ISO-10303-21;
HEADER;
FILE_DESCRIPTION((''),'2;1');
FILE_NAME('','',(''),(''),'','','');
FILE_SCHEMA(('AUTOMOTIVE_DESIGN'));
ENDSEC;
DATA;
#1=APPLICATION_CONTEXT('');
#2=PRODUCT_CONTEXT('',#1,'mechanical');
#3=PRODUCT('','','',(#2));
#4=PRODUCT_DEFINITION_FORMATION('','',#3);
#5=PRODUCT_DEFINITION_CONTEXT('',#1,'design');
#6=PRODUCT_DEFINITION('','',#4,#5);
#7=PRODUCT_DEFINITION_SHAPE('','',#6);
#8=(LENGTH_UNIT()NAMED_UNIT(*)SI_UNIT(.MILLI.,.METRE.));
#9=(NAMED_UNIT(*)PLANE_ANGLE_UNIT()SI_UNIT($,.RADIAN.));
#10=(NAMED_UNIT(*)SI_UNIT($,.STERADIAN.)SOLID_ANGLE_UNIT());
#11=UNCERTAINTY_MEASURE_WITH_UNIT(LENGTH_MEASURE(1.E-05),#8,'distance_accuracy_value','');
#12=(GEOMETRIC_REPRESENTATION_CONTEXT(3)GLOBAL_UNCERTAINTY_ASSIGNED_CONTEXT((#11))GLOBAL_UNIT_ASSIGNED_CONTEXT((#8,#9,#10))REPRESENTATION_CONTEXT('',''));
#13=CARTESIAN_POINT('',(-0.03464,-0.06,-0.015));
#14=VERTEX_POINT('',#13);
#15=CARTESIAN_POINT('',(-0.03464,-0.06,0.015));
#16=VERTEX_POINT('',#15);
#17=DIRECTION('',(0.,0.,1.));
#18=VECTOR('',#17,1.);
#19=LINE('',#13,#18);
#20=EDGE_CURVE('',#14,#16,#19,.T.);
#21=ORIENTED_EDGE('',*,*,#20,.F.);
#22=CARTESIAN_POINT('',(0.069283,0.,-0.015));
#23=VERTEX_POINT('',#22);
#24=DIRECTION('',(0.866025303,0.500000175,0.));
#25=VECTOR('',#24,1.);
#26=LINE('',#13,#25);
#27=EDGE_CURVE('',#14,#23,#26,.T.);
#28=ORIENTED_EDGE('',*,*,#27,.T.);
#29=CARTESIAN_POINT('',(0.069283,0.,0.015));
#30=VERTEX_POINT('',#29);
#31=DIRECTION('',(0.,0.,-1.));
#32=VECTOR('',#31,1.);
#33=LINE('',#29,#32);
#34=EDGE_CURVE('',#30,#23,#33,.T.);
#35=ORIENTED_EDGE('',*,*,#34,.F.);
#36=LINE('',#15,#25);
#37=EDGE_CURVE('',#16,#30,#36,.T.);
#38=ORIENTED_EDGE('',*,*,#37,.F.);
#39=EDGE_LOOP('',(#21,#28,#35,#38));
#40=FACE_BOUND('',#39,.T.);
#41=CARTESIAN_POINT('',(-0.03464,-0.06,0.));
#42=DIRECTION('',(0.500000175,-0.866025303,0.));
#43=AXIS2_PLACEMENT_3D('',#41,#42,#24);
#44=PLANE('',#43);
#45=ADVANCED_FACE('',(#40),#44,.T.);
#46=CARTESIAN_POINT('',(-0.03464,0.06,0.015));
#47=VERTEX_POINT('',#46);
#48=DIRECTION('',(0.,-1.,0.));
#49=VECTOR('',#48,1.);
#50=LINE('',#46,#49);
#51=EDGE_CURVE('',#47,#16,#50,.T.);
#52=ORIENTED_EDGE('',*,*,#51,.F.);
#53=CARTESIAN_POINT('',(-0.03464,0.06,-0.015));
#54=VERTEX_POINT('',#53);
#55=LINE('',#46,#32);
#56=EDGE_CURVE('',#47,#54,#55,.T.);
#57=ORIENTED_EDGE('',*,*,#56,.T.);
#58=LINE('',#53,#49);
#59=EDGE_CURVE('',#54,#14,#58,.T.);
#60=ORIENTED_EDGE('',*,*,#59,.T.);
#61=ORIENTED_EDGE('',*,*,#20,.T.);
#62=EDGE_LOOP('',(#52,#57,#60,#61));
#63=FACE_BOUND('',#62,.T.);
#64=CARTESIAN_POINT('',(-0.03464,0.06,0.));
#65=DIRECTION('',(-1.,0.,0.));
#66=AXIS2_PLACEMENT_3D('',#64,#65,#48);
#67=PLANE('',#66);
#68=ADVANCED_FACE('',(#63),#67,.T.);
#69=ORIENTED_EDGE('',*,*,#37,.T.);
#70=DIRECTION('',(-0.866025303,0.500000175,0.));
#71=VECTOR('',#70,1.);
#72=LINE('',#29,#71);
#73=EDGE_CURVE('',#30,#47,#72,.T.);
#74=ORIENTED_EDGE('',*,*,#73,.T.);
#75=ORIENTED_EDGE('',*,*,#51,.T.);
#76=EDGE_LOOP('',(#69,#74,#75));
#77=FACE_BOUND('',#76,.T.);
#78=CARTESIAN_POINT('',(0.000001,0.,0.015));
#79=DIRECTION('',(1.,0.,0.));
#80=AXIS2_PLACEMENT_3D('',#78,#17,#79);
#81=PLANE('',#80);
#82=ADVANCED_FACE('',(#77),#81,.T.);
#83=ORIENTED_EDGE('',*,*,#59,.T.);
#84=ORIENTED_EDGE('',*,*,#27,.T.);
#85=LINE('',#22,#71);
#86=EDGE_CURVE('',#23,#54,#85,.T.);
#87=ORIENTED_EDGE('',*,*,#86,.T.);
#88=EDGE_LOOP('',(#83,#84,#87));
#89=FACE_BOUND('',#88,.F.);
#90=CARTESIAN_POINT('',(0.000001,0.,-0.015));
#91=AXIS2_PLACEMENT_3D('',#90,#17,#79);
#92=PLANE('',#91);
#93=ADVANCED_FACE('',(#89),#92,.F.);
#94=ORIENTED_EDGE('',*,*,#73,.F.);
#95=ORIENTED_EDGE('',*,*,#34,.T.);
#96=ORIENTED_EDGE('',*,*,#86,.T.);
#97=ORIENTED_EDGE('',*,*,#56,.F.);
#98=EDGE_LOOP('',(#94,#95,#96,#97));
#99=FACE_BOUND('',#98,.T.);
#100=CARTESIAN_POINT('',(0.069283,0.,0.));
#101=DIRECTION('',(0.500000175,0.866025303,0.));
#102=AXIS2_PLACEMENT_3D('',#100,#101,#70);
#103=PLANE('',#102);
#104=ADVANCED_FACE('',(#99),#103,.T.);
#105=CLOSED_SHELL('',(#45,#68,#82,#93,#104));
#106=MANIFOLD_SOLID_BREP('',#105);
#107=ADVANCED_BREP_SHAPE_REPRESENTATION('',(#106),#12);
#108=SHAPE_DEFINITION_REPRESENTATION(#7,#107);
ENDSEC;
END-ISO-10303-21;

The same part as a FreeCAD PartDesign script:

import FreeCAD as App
import Part
import Sketcher

V = App.Vector
Q = App.Units.Quantity


def add_polygon(sketch, points):
    """Adds a closed chain of lines whose ends are joined by coincident constraints."""
    first, n = sketch.GeometryCount, len(points)
    for a, b in zip(points, points[1:] + points[:1]):
        sketch.addGeometry(Part.LineSegment(App.Vector(*a, 0), App.Vector(*b, 0)), False)
    for i in range(n):
        sketch.addConstraint(Sketcher.Constraint("Coincident", first + i, 2, first + (i + 1) % n, 1))

doc = App.newDocument("Part")
body = doc.addObject("PartDesign::Body", "Body")

# Sketch on XY plane
sketch1 = doc.addObject("Sketcher::SketchObject", "Sketch")
body.addObject(sketch1)
sketch1.AttachmentSupport = (doc.XY_Plane, [""])
sketch1.MapMode = "FlatFace"
add_polygon(sketch1, [(-0.03, 0.06), (-0.03, -0.06), (0.07, 0)])  # lines 0-2
sketch1.addConstraint([
    Sketcher.Constraint("Vertical", 0),
    Sketcher.Constraint("PointOnObject", 1, 2, -1),
    Sketcher.Constraint("Equal", 1, 2),
    Sketcher.Constraint("Angle", 1, Q("30.000012 deg")),
    Sketcher.Constraint("DistanceY", 0, 2, 0, 1, Q("0.12 mm")),
    Sketcher.Constraint("DistanceX", 0, 2, -1, 1, Q("0.03464 mm")),
])
pad1 = doc.addObject("PartDesign::Pad", "Pad")
body.addObject(pad1)
pad1.Profile = sketch1
pad1.Length = 0.03
pad1.Midplane = True

doc.recompute()
